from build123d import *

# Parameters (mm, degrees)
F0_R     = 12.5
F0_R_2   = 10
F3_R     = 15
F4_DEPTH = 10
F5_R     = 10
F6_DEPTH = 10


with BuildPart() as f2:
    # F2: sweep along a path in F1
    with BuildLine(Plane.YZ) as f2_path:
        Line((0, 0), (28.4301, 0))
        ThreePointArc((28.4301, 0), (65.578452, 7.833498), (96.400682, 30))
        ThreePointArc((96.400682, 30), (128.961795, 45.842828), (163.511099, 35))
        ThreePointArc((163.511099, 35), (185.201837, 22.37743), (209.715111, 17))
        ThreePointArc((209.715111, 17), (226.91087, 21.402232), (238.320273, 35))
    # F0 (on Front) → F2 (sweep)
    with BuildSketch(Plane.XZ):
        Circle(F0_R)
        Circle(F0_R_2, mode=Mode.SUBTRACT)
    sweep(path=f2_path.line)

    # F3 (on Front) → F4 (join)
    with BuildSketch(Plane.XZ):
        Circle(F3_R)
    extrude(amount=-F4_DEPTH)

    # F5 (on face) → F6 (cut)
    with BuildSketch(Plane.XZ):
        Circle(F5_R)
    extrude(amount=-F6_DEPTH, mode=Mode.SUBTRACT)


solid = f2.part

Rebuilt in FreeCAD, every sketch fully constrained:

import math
import FreeCAD as App
import Part
import Sketcher
from FreeCAD import Vector

doc = App.newDocument("Part")
body = doc.addObject("PartDesign::Body", "Body")

# Sketch on XZ plane
sketch1 = doc.addObject("Sketcher::SketchObject", "Sketch")
body.addObject(sketch1)
sketch1.AttachmentSupport = (doc.XZ_Plane, [""])
sketch1.MapMode = "FlatFace"
sketch1.addGeometry(Part.Circle(Vector(0, 0, 0), Vector(0, 0, 1), 12), False)
sketch1.addGeometry(Part.Circle(Vector(0, 0, 0), Vector(0, 0, 1), 10), False)
sketch1.addConstraint(Sketcher.Constraint("Coincident", 0, 3, -1, 1))
sketch1.addConstraint(Sketcher.Constraint("Coincident", 1, 3, -1, 1))
sketch1.addConstraint(Sketcher.Constraint("Diameter", 0, 25.0))
sketch1.addConstraint(Sketcher.Constraint("Diameter", 1, 20.0))

# Sketch on YZ plane
sketch2 = doc.addObject("Sketcher::SketchObject", "Sketch001")
body.addObject(sketch2)
sketch2.AttachmentSupport = (doc.YZ_Plane, [""])
sketch2.MapMode = "FlatFace"
sketch2.addGeometry(Part.LineSegment(Vector(0, 0, 0), Vector(28.4301, 0, 0)), False)
sketch2.addGeometry(Part.ArcOfCircle(Part.Circle(Vector(28.430103, 91.999994, 0), Vector(0, 0, 1), 91.999994), math.radians(-90.000002), math.radians(-42.369797)), False)
sketch2.addGeometry(Part.ArcOfCircle(Part.Circle(Vector(132.602405, -3.021741, 0), Vector(0, 0, 1), 49.000001), math.radians(50.891594), math.radians(137.6302)), False)
sketch2.addGeometry(Part.ArcOfCircle(Part.Circle(Vector(214.605061, 97.85226, 0), Vector(0, 0, 1), 80.999998), math.radians(-129.108408), math.radians(-93.461037)), False)
sketch2.addGeometry(Part.ArcOfCircle(Part.Circle(Vector(211.465833, 45.947108, 0), Vector(0, 0, 1), 29.000002), math.radians(-93.461036), math.radians(-22.178075)), False)
sketch2.addConstraint(Sketcher.Constraint("Coincident", 0, 2, 1, 1))
sketch2.addConstraint(Sketcher.Constraint("Coincident", 1, 2, 2, 2))
sketch2.addConstraint(Sketcher.Constraint("Coincident", 2, 1, 3, 1))
sketch2.addConstraint(Sketcher.Constraint("Coincident", 3, 2, 4, 1))
sketch2.addConstraint(Sketcher.Constraint("Horizontal", 0))
sketch2.addConstraint(Sketcher.Constraint("Coincident", 0, 1, -1, 1))
sketch2.addConstraint(Sketcher.Constraint("Radius", 2, 49.000001))
sketch2.addConstraint(Sketcher.Constraint("Radius", 4, 29.000002))
sketch2.addConstraint(Sketcher.Constraint("DistanceY", -1, 1, 1, 2, 30.0))
sketch2.addConstraint(Sketcher.Constraint("DistanceY", -1, 1, 2, 1, 35.0))
sketch2.addConstraint(Sketcher.Constraint("DistanceY", -1, 1, 3, 2, 17.0))
sketch2.addConstraint(Sketcher.Constraint("DistanceY", -1, 1, 4, 2, 35.0))
sketch2.addConstraint(Sketcher.Constraint("DistanceX", 0, 1, 0, 2, 28.4301))
sketch2.addConstraint(Sketcher.Constraint("Radius", 1, 91.999994))
sketch2.addConstraint(Sketcher.Constraint("Radius", 3, 80.999998))
sketch2.addConstraint(Sketcher.Constraint("DistanceY", 2, 3, 3, 3, 100.874001))
sketch2.addConstraint(Sketcher.Constraint("DistanceX", 0, 2, 2, 1, 135.080999))
sketch2.addConstraint(Sketcher.Constraint("DistanceY", 2, 3, -1, 1, 3.021741))
sketch2.addConstraint(Sketcher.Constraint("DistanceY", -1, 1, 4, 3, 45.947108))
doc.recompute()

additivepipe = doc.addObject("PartDesign::AdditivePipe", "AdditivePipe")
body.addObject(additivepipe)
additivepipe.Profile = sketch1
additivepipe.Spine = (sketch2, ["Edge1", "Edge2", "Edge3", "Edge4", "Edge5"])

# Sketch on XZ plane
sketch3 = doc.addObject("Sketcher::SketchObject", "Sketch002")
body.addObject(sketch3)
sketch3.AttachmentSupport = (doc.XZ_Plane, [""])
sketch3.MapMode = "FlatFace"
sketch3.addGeometry(Part.Circle(Vector(0, 0, 0), Vector(0, 0, 1), 15), False)
sketch3.addConstraint(Sketcher.Constraint("Coincident", 0, 3, -1, 1))
sketch3.addConstraint(Sketcher.Constraint("Diameter", 0, 30.0))
pad1 = doc.addObject("PartDesign::Pad", "Pad")
body.addObject(pad1)
pad1.Profile = sketch3
pad1.Length = 10
pad1.Reversed = True

# Sketch on XZ plane
sketch4 = doc.addObject("Sketcher::SketchObject", "Sketch003")
body.addObject(sketch4)
sketch4.AttachmentSupport = (doc.XZ_Plane, [""])
sketch4.MapMode = "FlatFace"
sketch4.addGeometry(Part.Circle(Vector(0, 0, 0), Vector(0, 0, 1), 10), False)
sketch4.addConstraint(Sketcher.Constraint("Coincident", 0, 3, -1, 1))
sketch4.addConstraint(Sketcher.Constraint("Diameter", 0, 20.0))
pocket1 = doc.addObject("PartDesign::Pocket", "Pocket")
body.addObject(pocket1)
pocket1.Profile = sketch4
pocket1.Length = 10

doc.recompute()
